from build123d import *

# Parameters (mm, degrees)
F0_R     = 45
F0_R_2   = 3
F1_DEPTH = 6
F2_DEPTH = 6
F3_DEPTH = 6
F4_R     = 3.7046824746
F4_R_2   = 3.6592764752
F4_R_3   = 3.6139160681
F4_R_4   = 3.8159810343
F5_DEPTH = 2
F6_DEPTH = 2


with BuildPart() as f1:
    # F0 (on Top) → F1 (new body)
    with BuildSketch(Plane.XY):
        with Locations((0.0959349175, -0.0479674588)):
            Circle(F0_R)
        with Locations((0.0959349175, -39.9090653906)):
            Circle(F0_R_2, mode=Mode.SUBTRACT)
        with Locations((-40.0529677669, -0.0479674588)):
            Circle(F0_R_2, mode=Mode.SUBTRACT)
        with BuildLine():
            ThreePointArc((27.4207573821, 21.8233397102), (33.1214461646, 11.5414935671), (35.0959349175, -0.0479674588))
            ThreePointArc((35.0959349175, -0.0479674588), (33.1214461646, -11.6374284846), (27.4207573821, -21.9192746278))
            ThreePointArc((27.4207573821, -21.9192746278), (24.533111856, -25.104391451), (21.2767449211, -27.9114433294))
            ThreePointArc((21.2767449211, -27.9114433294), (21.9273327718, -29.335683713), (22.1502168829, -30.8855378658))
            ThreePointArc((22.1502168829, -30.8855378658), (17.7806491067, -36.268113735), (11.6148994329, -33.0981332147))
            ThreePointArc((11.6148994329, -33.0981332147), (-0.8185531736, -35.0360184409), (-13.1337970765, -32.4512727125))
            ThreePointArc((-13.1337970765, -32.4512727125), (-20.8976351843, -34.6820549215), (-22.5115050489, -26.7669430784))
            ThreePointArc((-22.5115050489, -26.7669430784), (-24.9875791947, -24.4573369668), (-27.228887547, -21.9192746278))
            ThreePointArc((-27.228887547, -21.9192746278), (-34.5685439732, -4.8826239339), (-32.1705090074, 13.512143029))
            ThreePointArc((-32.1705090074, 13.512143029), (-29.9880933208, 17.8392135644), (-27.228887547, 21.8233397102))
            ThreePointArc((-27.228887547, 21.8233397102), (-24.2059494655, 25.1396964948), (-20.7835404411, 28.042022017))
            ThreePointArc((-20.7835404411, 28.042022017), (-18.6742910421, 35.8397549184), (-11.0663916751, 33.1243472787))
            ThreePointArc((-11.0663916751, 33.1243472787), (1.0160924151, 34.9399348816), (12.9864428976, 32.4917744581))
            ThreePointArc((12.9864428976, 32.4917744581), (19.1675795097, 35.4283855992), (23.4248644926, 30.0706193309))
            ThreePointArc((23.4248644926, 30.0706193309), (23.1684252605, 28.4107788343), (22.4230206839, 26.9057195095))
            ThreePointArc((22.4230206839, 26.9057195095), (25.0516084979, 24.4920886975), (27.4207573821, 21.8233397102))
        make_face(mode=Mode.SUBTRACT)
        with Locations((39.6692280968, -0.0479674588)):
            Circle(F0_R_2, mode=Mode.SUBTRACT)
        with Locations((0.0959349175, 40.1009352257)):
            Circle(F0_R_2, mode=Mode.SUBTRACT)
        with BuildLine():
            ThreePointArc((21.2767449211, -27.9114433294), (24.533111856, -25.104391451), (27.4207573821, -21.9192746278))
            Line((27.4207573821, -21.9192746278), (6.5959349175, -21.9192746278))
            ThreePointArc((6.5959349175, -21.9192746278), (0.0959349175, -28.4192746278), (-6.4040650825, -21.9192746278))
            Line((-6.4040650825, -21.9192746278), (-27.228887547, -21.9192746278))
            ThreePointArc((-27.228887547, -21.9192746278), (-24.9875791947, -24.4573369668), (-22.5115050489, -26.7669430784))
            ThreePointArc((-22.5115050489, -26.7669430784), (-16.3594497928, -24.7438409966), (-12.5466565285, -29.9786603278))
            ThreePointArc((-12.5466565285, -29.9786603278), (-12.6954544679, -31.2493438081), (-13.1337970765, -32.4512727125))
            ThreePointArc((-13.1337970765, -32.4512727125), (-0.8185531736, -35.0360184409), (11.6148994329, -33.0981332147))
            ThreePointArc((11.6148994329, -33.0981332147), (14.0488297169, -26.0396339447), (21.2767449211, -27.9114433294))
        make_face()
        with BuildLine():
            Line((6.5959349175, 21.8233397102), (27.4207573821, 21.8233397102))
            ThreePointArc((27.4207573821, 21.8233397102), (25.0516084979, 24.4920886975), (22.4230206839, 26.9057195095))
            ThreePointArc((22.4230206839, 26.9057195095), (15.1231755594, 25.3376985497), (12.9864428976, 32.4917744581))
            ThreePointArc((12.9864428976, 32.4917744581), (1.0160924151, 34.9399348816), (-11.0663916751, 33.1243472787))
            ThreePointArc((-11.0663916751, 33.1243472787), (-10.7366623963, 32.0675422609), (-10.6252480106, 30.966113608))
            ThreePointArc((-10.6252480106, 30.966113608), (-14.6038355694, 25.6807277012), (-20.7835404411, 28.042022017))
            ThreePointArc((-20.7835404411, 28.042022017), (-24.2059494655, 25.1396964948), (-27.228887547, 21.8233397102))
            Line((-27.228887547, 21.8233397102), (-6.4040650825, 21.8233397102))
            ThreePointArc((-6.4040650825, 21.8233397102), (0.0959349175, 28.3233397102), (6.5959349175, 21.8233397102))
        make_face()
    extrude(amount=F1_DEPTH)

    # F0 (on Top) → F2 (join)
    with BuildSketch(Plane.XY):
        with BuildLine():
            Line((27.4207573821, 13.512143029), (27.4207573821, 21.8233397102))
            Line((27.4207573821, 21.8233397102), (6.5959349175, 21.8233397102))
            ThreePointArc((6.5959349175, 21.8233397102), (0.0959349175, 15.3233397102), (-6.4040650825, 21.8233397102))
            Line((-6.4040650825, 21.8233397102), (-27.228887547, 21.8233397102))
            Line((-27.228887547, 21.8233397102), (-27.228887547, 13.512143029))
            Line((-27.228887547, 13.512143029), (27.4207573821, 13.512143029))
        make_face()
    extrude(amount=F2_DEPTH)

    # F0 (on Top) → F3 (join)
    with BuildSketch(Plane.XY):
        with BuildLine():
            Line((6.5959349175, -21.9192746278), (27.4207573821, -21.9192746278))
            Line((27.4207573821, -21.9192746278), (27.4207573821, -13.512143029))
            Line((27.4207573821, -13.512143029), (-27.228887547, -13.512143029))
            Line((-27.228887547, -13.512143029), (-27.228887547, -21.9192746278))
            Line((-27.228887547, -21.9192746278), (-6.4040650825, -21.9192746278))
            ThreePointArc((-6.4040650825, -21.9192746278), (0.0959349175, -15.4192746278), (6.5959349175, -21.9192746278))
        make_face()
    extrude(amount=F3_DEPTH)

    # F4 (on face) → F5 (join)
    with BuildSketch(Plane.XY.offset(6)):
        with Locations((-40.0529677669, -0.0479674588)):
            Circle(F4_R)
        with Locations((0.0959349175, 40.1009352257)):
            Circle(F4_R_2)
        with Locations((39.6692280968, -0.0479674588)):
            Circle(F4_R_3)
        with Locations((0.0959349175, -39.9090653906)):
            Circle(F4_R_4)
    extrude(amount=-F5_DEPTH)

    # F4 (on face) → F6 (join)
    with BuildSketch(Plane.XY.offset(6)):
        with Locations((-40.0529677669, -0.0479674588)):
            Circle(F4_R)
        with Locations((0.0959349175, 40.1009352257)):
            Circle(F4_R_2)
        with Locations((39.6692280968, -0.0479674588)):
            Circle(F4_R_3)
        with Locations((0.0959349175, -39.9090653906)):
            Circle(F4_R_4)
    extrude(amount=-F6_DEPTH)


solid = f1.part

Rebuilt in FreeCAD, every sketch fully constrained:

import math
import FreeCAD as App
import Part
import Sketcher

doc = App.newDocument("Part")
params = doc.addObject("Spreadsheet::Sheet", "Params")
for row, (alias, value) in enumerate([
    ("sketch1_diameter", "90 mm"),
    ("sketch1_diameter2", "6 mm"),
    ("sketch1_radius", "35 mm"),
    ("sketch1_radius2", "6.5 mm"),
    ("sketch1_radius3", "5.5 mm"),
    ("pad1_length", "6 mm"),
    ("sketch2_radius", "6.5 mm"),
    ("pad2_length", "6 mm"),
    ("sketch3_radius", "6.5 mm"),
    ("pad3_length", "6 mm"),
    ("pad4_length", "2 mm"),
    ("pad5_length", "2 mm"),
], start=1):
    params.set(f"A{row}", alias)
    params.set(f"B{row}", "=" + value)
    params.setAlias(f"B{row}", alias)

body = doc.addObject("PartDesign::Body", "Body")

sketch1 = body.newObject("Sketcher::SketchObject", "Sketch")
sketch1.AttachmentSupport = (doc.getObject("XY_Plane"), [""])
sketch1.MapMode = "FlatFace"
sketch1.addGeometry([
    Part.Circle(App.Vector(0.1, 0, 0), App.Vector(0, 0, 1), 45),
    Part.Circle(App.Vector(-40.1, 0, 0), App.Vector(0, 0, 1), 3),
    Part.Circle(App.Vector(0.1, -39.9, 0), App.Vector(0, 0, 1), 3),
    Part.ArcOfCircle(Part.Circle(App.Vector(0.1, 0, 0), App.Vector(0, 0, 1), 35), math.radians(0), math.radians(39)),
    Part.ArcOfCircle(Part.Circle(App.Vector(0.1, 0, 0), App.Vector(0, 0, 1), 35), math.radians(-39), math.radians(0)),
    Part.LineSegment(App.Vector(27.4, -21.9, 0), App.Vector(6.6, -21.9, 0)),
    Part.ArcOfCircle(Part.Circle(App.Vector(0.1, -21.9, 0), App.Vector(0, 0, 1), 6.5), math.radians(180), math.radians(360)),
    Part.LineSegment(App.Vector(-6.4, -21.9, 0), App.Vector(-27.2, -21.9, 0)),
    Part.ArcOfCircle(Part.Circle(App.Vector(0.1, 0, 0), App.Vector(0, 0, 1), 35), math.radians(157), math.radians(219)),
    Part.ArcOfCircle(Part.Circle(App.Vector(0.1, 0, 0), App.Vector(0, 0, 1), 35), math.radians(141.33), math.radians(157.21)),
    Part.LineSegment(App.Vector(-27.2, 21.8, 0), App.Vector(-6.4, 21.8, 0)),
    Part.ArcOfCircle(Part.Circle(App.Vector(0.1, 21.8, 0), App.Vector(0, 0, 1), 6.5), math.radians(0), math.radians(180)),
    Part.LineSegment(App.Vector(6.6, 21.8, 0), App.Vector(27.4, 21.8, 0)),
    Part.ArcOfCircle(Part.Circle(App.Vector(-16.1, 31, 0), App.Vector(0, 0, 1), 5.5), math.radians(23), math.radians(212)),
    Part.ArcOfCircle(Part.Circle(App.Vector(-16.1, 31, 0), App.Vector(0, 0, 1), 5.5), math.radians(0), math.radians(23)),
    Part.ArcOfCircle(Part.Circle(App.Vector(-16.1, 31, 0), App.Vector(0, 0, 1), 5.5), math.radians(-148), math.radians(0)),
    Part.ArcOfCircle(Part.Circle(App.Vector(17.9, 30.1, 0), App.Vector(0, 0, 1), 5.5), math.radians(0), math.radians(154)),
    Part.ArcOfCircle(Part.Circle(App.Vector(17.9, 30.1, 0), App.Vector(0, 0, 1), 5.5), math.radians(-35), math.radians(0)),
    Part.ArcOfCircle(Part.Circle(App.Vector(17.9, 30.1, 0), App.Vector(0, 0, 1), 5.5), math.radians(154), math.radians(325)),
    Part.ArcOfCircle(Part.Circle(App.Vector(16.7, -30.9, 0), App.Vector(0, 0, 1), 5.5), math.radians(0), math.radians(33)),
    Part.ArcOfCircle(Part.Circle(App.Vector(16.7, -30.9, 0), App.Vector(0, 0, 1), 5.5), math.radians(-156), math.radians(0)),
    Part.ArcOfCircle(Part.Circle(App.Vector(16.7, -30.9, 0), App.Vector(0, 0, 1), 5.5), math.radians(33), math.radians(204)),
    Part.ArcOfCircle(Part.Circle(App.Vector(-18, -30, 0), App.Vector(0, 0, 1), 5.5), math.radians(144), math.radians(333)),
    Part.ArcOfCircle(Part.Circle(App.Vector(-18, -30, 0), App.Vector(0, 0, 1), 5.5), math.radians(0), math.radians(144)),
    Part.ArcOfCircle(Part.Circle(App.Vector(-18, -30, 0), App.Vector(0, 0, 1), 5.5), math.radians(-27), math.radians(0)),
    Part.Circle(App.Vector(39.7, 0, 0), App.Vector(0, 0, 1), 3),
    Part.Circle(App.Vector(0.1, 40.1, 0), App.Vector(0, 0, 1), 3),
], False)
sketch1.addConstraint([
    Sketcher.Constraint("Tangent", 3, 1, 4, 2),
    Sketcher.Constraint("Coincident", 4, 1, 5, 1),
    Sketcher.Constraint("Coincident", 5, 2, 6, 2),
    Sketcher.Constraint("Coincident", 6, 1, 7, 1),
    Sketcher.Constraint("Coincident", 7, 2, 8, 2),
    Sketcher.Constraint("Tangent", 8, 1, 9, 2),
    Sketcher.Constraint("Coincident", 9, 1, 10, 1),
    Sketcher.Constraint("Coincident", 10, 2, 11, 2),
    Sketcher.Constraint("Coincident", 11, 1, 12, 1),
    Sketcher.Constraint("Coincident", 12, 2, 3, 2),
    Sketcher.Constraint("Tangent", 13, 1, 14, 2),
    Sketcher.Constraint("Tangent", 14, 1, 15, 2),
    Sketcher.Constraint("Tangent", 15, 1, 13, 2),
    Sketcher.Constraint("Tangent", 16, 1, 17, 2),
    Sketcher.Constraint("Tangent", 17, 1, 18, 2),
    Sketcher.Constraint("Tangent", 18, 1, 16, 2),
    Sketcher.Constraint("Tangent", 19, 1, 20, 2),
    Sketcher.Constraint("Tangent", 20, 1, 21, 2),
    Sketcher.Constraint("Tangent", 21, 1, 19, 2),
    Sketcher.Constraint("Tangent", 22, 1, 23, 2),
    Sketcher.Constraint("Tangent", 23, 1, 24, 2),
    Sketcher.Constraint("Tangent", 24, 1, 22, 2),
    Sketcher.Constraint("Horizontal", 5),
    Sketcher.Constraint("Horizontal", 7),
    Sketcher.Constraint("Horizontal", 10),
    Sketcher.Constraint("Horizontal", 12),
    Sketcher.Constraint("Coincident", 3, 3, 0, 3),
    Sketcher.Constraint("Coincident", 8, 3, 0, 3),
    Sketcher.Constraint("Equal", 1, 2),
    Sketcher.Constraint("Equal", 3, 4),
    Sketcher.Constraint("Equal", 4, 8),
    Sketcher.Constraint("Equal", 8, 9),
    Sketcher.Constraint("Equal", 6, 11),
    Sketcher.Constraint("Equal", 15, 16),
    Sketcher.Constraint("Equal", 18, 19),
    Sketcher.Constraint("Equal", 21, 22),
    Sketcher.Constraint("Equal", 2, 25),
    Sketcher.Constraint("Equal", 25, 26),
    Sketcher.Constraint("Horizontal", 0, 3, 1, 3),
    Sketcher.Constraint("Horizontal", 9, 3, 25, 3),
    Sketcher.Constraint("Horizontal", 25, 3, 3, 1),
    Sketcher.Constraint("Horizontal", 6, 3, 4, 1),
    Sketcher.Constraint("Horizontal", 5, 2, 6, 1),
    Sketcher.Constraint("Horizontal", 11, 3, 9, 1),
    Sketcher.Constraint("Horizontal", 10, 2, 11, 1),
    Sketcher.Constraint("Horizontal", 15, 3, 14, 1),
    Sketcher.Constraint("Horizontal", 18, 3, 16, 1),
    Sketcher.Constraint("Horizontal", 21, 3, 19, 1),
    Sketcher.Constraint("Horizontal", 24, 3, 23, 1),
    Sketcher.Constraint("Vertical", 0, 3, 2, 3),
    Sketcher.Constraint("Vertical", 4, 3, 6, 3),
    Sketcher.Constraint("Vertical", 9, 3, 11, 3),
    Sketcher.Constraint("Vertical", 11, 3, 26, 3),
    Sketcher.Constraint("Vertical", 7, 2, 9, 1),
    Sketcher.Constraint("Diameter", 0, 90.0),
    Sketcher.Constraint("Diameter", 1, 6.0),
    Sketcher.Constraint("Radius", 3, 35.0),
    Sketcher.Constraint("Radius", 6, 6.5),
    Sketcher.Constraint("Radius", 13, 5.5),
    Sketcher.Constraint("DistanceX", -1, 1, 20, 1, 11.614899),
    Sketcher.Constraint("DistanceY", 17, 1, 16, 1, 3.1649),
    Sketcher.Constraint("DistanceX", 5, 2, 5, 1, 20.824822),
    Sketcher.Constraint("DistanceY", -1, 1, 11, 3, 21.82334),
    Sketcher.Constraint("DistanceX", 13, 3, -1, 1, 16.125248),
    Sketcher.Constraint("DistanceY", -1, 1, 16, 3, 30.070619),
    Sketcher.Constraint("DistanceY", 22, 3, -1, 1, 29.97866),
    Sketcher.Constraint("DistanceX", -1, 1, 25, 3, 39.669228),
    Sketcher.Constraint("DistanceX", 8, 1, -1, 1, 32.170509),
    Sketcher.Constraint("DistanceX", 13, 1, -1, 1, 11.066392),
    Sketcher.Constraint("DistanceX", 15, 1, -1, 1, 20.78354),
    Sketcher.Constraint("DistanceX", -1, 1, 17, 1, 22.423021),
    Sketcher.Constraint("DistanceY", 2, 3, 6, 3, 17.989791),
    Sketcher.Constraint("DistanceY", 9, 3, 13, 3, 31.014081),
    Sketcher.Constraint("DistanceX", 11, 3, 16, 3, 17.82893),
    Sketcher.Constraint("DistanceX", 6, 3, 19, 3, 16.554282),
    Sketcher.Constraint("DistanceY", 19, 3, 3, 3, 30.83757),
    Sketcher.Constraint("DistanceX", 22, 3, 6, 3, 18.142591),
    Sketcher.Constraint("DistanceY", 13, 3, 26, 3, 9.134822),
    Sketcher.Constraint("DistanceX", 1, 3, 7, 2, 12.82408),
    Sketcher.Constraint("DistanceX", 18, 1, 16, 3, 4.938422),
    Sketcher.Constraint("DistanceX", 21, 1, 19, 1, 0.873472),
    Sketcher.Constraint("DistanceX", 22, 1, 23, 3, 4.464849),
    Sketcher.Constraint("DistanceX", 24, 1, 23, 1, 0.587141),
])
sketch1.setExpression("Constraints[54]", "Params.sketch1_diameter")
sketch1.setExpression("Constraints[55]", "Params.sketch1_diameter2")
sketch1.setExpression("Constraints[56]", "Params.sketch1_radius")
sketch1.setExpression("Constraints[57]", "Params.sketch1_radius2")
sketch1.setExpression("Constraints[58]", "Params.sketch1_radius3")
pad1 = body.newObject("PartDesign::Pad", "Pad")
pad1.Profile = sketch1
pad1.setExpression("Length", "Params.pad1_length")

sketch2 = body.newObject("Sketcher::SketchObject", "Sketch001")
sketch2.AttachmentSupport = (doc.getObject("XY_Plane"), [""])
sketch2.MapMode = "FlatFace"
sketch2.addGeometry([
    Part.LineSegment(App.Vector(27, 14, 0), App.Vector(27, 22, 0)),
    Part.LineSegment(App.Vector(27, 22, 0), App.Vector(7, 22, 0)),
    Part.ArcOfCircle(Part.Circle(App.Vector(0, 22, 0), App.Vector(0, 0, 1), 6), math.radians(180), math.radians(360)),
    Part.LineSegment(App.Vector(-6, 22, 0), App.Vector(-27, 22, 0)),
    Part.LineSegment(App.Vector(-27, 22, 0), App.Vector(-27, 14, 0)),
    Part.LineSegment(App.Vector(-27, 14, 0), App.Vector(27, 14, 0)),
], False)
sketch2.addConstraint([
    Sketcher.Constraint("Coincident", 0, 2, 1, 1),
    Sketcher.Constraint("Coincident", 1, 2, 2, 2),
    Sketcher.Constraint("Coincident", 2, 1, 3, 1),
    Sketcher.Constraint("Coincident", 3, 2, 4, 1),
    Sketcher.Constraint("Coincident", 4, 2, 5, 1),
    Sketcher.Constraint("Coincident", 5, 2, 0, 1),
    Sketcher.Constraint("Vertical", 0),
    Sketcher.Constraint("Horizontal", 1),
    Sketcher.Constraint("Horizontal", 3),
    Sketcher.Constraint("Vertical", 4),
    Sketcher.Constraint("Horizontal", 5),
    Sketcher.Constraint("Horizontal", 2, 3, 0, 2),
    Sketcher.Constraint("Horizontal", 1, 2, 2, 1),
    Sketcher.Constraint("Equal", 1, 3),
    Sketcher.Constraint("Radius", 2, 6.5),
    Sketcher.Constraint("DistanceX", 1, 2, 1, 1, 20.824822),
    Sketcher.Constraint("DistanceY", 0, 1, 0, 2, 8.311197),
    Sketcher.Constraint("DistanceY", -1, 1, 2, 3, 21.82334),
    Sketcher.Constraint("DistanceX", -1, 1, 2, 3, 0.095935),
])
sketch2.setExpression("Constraints[14]", "Params.sketch2_radius")
pad2 = body.newObject("PartDesign::Pad", "Pad001")
pad2.Profile = sketch2
pad2.setExpression("Length", "Params.pad2_length")

sketch3 = body.newObject("Sketcher::SketchObject", "Sketch002")
sketch3.AttachmentSupport = (doc.getObject("XY_Plane"), [""])
sketch3.MapMode = "FlatFace"
sketch3.addGeometry([
    Part.LineSegment(App.Vector(7, -22, 0), App.Vector(27, -22, 0)),
    Part.LineSegment(App.Vector(27, -22, 0), App.Vector(27, -14, 0)),
    Part.LineSegment(App.Vector(27, -14, 0), App.Vector(-27, -14, 0)),
    Part.LineSegment(App.Vector(-27, -14, 0), App.Vector(-27, -22, 0)),
    Part.LineSegment(App.Vector(-27, -22, 0), App.Vector(-6, -22, 0)),
    Part.ArcOfCircle(Part.Circle(App.Vector(0, -22, 0), App.Vector(0, 0, 1), 6), math.radians(0), math.radians(180)),
], False)
sketch3.addConstraint([
    Sketcher.Constraint("Coincident", 0, 2, 1, 1),
    Sketcher.Constraint("Coincident", 1, 2, 2, 1),
    Sketcher.Constraint("Coincident", 2, 2, 3, 1),
    Sketcher.Constraint("Coincident", 3, 2, 4, 1),
    Sketcher.Constraint("Coincident", 4, 2, 5, 2),
    Sketcher.Constraint("Coincident", 5, 1, 0, 1),
    Sketcher.Constraint("Horizontal", 0),
    Sketcher.Constraint("Vertical", 1),
    Sketcher.Constraint("Horizontal", 2),
    Sketcher.Constraint("Vertical", 3),
    Sketcher.Constraint("Horizontal", 4),
    Sketcher.Constraint("Horizontal", 5, 3, 0, 2),
    Sketcher.Constraint("Horizontal", 0, 2, 3, 2),
    Sketcher.Constraint("Equal", 0, 4),
    Sketcher.Constraint("Radius", 5, 6.5),
    Sketcher.Constraint("DistanceY", 1, 1, 1, 2, 8.407132),
    Sketcher.Constraint("DistanceX", 0, 1, 0, 2, 20.824822),
    Sketcher.Constraint("DistanceX", -1, 1, 5, 3, 0.095935),
    Sketcher.Constraint("DistanceY", 5, 3, -1, 1, 21.919275),
])
sketch3.setExpression("Constraints[14]", "Params.sketch3_radius")
pad3 = body.newObject("PartDesign::Pad", "Pad002")
pad3.Profile = sketch3
pad3.setExpression("Length", "Params.pad3_length")

sketch4 = body.newObject("Sketcher::SketchObject", "Sketch003")
sketch4.AttachmentSupport = (doc.getObject("XY_Plane"), [""])
sketch4.MapMode = "FlatFace"
sketch4.AttachmentOffset = App.Placement(App.Vector(0, 0, 6), App.Rotation())
sketch4.addGeometry([
    Part.Circle(App.Vector(-40.1, 0, 0), App.Vector(0, 0, 1), 3.7),
    Part.Circle(App.Vector(0.1, 40.1, 0), App.Vector(0, 0, 1), 3.7),
    Part.Circle(App.Vector(39.7, 0, 0), App.Vector(0, 0, 1), 3.6),
    Part.Circle(App.Vector(0.1, -39.9, 0), App.Vector(0, 0, 1), 3.8),
], False)
sketch4.addConstraint([
    Sketcher.Constraint("Horizontal", 0, 3, 2, 3),
    Sketcher.Constraint("Vertical", 1, 3, 3, 3),
    Sketcher.Constraint("DistanceY", 3, 3, 1, 3, 80.010001),
    Sketcher.Constraint("Diameter", 0, 7.409365),
    Sketcher.Constraint("Diameter", 1, 7.318553),
    Sketcher.Constraint("Diameter", 2, 7.227832),
    Sketcher.Constraint("Diameter", 3, 7.631962),
    Sketcher.Constraint("DistanceX", -1, 1, 2, 3, 39.669228),
    Sketcher.Constraint("DistanceX", 0, 3, -1, 1, 40.052968),
    Sketcher.Constraint("DistanceY", 0, 3, -1, 1, 0.047967),
    Sketcher.Constraint("DistanceX", -1, 1, 1, 3, 0.095935),
    Sketcher.Constraint("DistanceY", -1, 1, 1, 3, 40.100935),
])
pad4 = body.newObject("PartDesign::Pad", "Pad003")
pad4.Profile = sketch4
pad4.setExpression("Length", "Params.pad4_length")
pad4.Reversed = True

sketch5 = body.newObject("Sketcher::SketchObject", "Sketch004")
sketch5.AttachmentSupport = (doc.getObject("XY_Plane"), [""])
sketch5.MapMode = "FlatFace"
sketch5.AttachmentOffset = App.Placement(App.Vector(0, 0, 6), App.Rotation())
sketch5.addGeometry([
    Part.Circle(App.Vector(-40.1, 0, 0), App.Vector(0, 0, 1), 3.7),
    Part.Circle(App.Vector(0.1, 40.1, 0), App.Vector(0, 0, 1), 3.7),
    Part.Circle(App.Vector(39.7, 0, 0), App.Vector(0, 0, 1), 3.6),
    Part.Circle(App.Vector(0.1, -39.9, 0), App.Vector(0, 0, 1), 3.8),
], False)
sketch5.addConstraint([
    Sketcher.Constraint("Horizontal", 0, 3, 2, 3),
    Sketcher.Constraint("Vertical", 1, 3, 3, 3),
    Sketcher.Constraint("DistanceY", 3, 3, 1, 3, 80.010001),
    Sketcher.Constraint("Diameter", 0, 7.409365),
    Sketcher.Constraint("Diameter", 1, 7.318553),
    Sketcher.Constraint("Diameter", 2, 7.227832),
    Sketcher.Constraint("Diameter", 3, 7.631962),
    Sketcher.Constraint("DistanceX", -1, 1, 2, 3, 39.669228),
    Sketcher.Constraint("DistanceX", 0, 3, -1, 1, 40.052968),
    Sketcher.Constraint("DistanceY", 0, 3, -1, 1, 0.047967),
    Sketcher.Constraint("DistanceX", -1, 1, 1, 3, 0.095935),
    Sketcher.Constraint("DistanceY", -1, 1, 1, 3, 40.100935),
])
pad5 = body.newObject("PartDesign::Pad", "Pad004")
pad5.Profile = sketch5
pad5.setExpression("Length", "Params.pad5_length")
pad5.Reversed = True

doc.recompute()
